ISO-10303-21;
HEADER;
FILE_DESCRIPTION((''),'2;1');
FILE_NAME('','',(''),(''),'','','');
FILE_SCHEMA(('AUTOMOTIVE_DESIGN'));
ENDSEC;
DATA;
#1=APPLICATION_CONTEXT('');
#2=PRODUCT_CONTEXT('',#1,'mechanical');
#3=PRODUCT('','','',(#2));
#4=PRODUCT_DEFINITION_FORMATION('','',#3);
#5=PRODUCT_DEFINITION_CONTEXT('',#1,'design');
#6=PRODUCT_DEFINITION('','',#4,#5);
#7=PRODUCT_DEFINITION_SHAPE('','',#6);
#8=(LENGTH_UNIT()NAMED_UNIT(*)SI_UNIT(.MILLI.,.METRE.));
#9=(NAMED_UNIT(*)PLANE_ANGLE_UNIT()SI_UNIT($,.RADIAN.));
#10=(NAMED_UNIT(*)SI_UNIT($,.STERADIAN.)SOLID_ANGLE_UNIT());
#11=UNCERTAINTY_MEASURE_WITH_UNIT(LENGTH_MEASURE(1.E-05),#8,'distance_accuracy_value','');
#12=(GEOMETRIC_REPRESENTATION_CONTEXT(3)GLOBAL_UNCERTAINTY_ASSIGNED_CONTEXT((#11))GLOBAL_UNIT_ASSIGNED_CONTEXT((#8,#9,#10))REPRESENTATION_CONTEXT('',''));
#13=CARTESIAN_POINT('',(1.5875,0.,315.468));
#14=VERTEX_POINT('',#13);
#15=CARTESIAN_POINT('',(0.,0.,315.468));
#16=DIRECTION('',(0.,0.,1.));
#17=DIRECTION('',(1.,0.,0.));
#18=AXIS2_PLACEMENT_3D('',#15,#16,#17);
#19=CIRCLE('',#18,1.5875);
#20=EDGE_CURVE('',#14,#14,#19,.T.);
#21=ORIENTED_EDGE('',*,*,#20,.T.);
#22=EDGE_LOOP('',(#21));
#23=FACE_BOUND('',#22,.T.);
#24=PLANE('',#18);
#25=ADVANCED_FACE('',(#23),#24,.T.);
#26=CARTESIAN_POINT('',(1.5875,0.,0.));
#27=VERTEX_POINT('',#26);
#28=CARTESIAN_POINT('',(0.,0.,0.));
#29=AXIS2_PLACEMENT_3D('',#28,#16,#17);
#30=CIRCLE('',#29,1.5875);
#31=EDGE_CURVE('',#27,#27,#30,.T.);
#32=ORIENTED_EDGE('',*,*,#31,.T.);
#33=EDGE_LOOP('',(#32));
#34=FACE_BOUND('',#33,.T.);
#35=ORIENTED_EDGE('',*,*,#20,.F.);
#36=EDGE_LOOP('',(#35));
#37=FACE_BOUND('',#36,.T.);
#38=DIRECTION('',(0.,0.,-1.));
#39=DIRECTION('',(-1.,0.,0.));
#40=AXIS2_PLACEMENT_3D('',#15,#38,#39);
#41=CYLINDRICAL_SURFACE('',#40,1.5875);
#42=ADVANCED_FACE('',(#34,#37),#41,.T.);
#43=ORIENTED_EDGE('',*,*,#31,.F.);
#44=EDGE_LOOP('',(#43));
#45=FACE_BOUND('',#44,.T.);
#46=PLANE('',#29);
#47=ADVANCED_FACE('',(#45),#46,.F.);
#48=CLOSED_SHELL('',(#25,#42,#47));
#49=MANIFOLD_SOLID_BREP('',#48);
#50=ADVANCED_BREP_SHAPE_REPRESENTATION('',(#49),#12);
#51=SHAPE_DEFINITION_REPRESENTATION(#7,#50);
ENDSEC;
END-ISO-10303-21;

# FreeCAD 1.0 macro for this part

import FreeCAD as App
import Part
import Sketcher

V = App.Vector
Q = App.Units.Quantity

doc = App.newDocument("Part")
body = doc.addObject("PartDesign::Body", "Body")

# Sketch on XY plane
sketch1 = body.newObject("Sketcher::SketchObject", "Sketch")
sketch1.AttachmentSupport = (doc.getObject("XY_Plane"), [""])
sketch1.MapMode = "FlatFace"
sketch1.addGeometry(Part.Circle(V(0, 0, 0), V(0, 0, 1), 1.6), False)
sketch1.addConstraint([
    Sketcher.Constraint("Coincident", 0, 3, -1, 1),
    Sketcher.Constraint("Diameter", 0, Q("0.125 in")),
])
pad1 = body.newObject("PartDesign::Pad", "Pad")
pad1.Profile = sketch1
pad1.Length = Q("12.42 in")

doc.recompute()
